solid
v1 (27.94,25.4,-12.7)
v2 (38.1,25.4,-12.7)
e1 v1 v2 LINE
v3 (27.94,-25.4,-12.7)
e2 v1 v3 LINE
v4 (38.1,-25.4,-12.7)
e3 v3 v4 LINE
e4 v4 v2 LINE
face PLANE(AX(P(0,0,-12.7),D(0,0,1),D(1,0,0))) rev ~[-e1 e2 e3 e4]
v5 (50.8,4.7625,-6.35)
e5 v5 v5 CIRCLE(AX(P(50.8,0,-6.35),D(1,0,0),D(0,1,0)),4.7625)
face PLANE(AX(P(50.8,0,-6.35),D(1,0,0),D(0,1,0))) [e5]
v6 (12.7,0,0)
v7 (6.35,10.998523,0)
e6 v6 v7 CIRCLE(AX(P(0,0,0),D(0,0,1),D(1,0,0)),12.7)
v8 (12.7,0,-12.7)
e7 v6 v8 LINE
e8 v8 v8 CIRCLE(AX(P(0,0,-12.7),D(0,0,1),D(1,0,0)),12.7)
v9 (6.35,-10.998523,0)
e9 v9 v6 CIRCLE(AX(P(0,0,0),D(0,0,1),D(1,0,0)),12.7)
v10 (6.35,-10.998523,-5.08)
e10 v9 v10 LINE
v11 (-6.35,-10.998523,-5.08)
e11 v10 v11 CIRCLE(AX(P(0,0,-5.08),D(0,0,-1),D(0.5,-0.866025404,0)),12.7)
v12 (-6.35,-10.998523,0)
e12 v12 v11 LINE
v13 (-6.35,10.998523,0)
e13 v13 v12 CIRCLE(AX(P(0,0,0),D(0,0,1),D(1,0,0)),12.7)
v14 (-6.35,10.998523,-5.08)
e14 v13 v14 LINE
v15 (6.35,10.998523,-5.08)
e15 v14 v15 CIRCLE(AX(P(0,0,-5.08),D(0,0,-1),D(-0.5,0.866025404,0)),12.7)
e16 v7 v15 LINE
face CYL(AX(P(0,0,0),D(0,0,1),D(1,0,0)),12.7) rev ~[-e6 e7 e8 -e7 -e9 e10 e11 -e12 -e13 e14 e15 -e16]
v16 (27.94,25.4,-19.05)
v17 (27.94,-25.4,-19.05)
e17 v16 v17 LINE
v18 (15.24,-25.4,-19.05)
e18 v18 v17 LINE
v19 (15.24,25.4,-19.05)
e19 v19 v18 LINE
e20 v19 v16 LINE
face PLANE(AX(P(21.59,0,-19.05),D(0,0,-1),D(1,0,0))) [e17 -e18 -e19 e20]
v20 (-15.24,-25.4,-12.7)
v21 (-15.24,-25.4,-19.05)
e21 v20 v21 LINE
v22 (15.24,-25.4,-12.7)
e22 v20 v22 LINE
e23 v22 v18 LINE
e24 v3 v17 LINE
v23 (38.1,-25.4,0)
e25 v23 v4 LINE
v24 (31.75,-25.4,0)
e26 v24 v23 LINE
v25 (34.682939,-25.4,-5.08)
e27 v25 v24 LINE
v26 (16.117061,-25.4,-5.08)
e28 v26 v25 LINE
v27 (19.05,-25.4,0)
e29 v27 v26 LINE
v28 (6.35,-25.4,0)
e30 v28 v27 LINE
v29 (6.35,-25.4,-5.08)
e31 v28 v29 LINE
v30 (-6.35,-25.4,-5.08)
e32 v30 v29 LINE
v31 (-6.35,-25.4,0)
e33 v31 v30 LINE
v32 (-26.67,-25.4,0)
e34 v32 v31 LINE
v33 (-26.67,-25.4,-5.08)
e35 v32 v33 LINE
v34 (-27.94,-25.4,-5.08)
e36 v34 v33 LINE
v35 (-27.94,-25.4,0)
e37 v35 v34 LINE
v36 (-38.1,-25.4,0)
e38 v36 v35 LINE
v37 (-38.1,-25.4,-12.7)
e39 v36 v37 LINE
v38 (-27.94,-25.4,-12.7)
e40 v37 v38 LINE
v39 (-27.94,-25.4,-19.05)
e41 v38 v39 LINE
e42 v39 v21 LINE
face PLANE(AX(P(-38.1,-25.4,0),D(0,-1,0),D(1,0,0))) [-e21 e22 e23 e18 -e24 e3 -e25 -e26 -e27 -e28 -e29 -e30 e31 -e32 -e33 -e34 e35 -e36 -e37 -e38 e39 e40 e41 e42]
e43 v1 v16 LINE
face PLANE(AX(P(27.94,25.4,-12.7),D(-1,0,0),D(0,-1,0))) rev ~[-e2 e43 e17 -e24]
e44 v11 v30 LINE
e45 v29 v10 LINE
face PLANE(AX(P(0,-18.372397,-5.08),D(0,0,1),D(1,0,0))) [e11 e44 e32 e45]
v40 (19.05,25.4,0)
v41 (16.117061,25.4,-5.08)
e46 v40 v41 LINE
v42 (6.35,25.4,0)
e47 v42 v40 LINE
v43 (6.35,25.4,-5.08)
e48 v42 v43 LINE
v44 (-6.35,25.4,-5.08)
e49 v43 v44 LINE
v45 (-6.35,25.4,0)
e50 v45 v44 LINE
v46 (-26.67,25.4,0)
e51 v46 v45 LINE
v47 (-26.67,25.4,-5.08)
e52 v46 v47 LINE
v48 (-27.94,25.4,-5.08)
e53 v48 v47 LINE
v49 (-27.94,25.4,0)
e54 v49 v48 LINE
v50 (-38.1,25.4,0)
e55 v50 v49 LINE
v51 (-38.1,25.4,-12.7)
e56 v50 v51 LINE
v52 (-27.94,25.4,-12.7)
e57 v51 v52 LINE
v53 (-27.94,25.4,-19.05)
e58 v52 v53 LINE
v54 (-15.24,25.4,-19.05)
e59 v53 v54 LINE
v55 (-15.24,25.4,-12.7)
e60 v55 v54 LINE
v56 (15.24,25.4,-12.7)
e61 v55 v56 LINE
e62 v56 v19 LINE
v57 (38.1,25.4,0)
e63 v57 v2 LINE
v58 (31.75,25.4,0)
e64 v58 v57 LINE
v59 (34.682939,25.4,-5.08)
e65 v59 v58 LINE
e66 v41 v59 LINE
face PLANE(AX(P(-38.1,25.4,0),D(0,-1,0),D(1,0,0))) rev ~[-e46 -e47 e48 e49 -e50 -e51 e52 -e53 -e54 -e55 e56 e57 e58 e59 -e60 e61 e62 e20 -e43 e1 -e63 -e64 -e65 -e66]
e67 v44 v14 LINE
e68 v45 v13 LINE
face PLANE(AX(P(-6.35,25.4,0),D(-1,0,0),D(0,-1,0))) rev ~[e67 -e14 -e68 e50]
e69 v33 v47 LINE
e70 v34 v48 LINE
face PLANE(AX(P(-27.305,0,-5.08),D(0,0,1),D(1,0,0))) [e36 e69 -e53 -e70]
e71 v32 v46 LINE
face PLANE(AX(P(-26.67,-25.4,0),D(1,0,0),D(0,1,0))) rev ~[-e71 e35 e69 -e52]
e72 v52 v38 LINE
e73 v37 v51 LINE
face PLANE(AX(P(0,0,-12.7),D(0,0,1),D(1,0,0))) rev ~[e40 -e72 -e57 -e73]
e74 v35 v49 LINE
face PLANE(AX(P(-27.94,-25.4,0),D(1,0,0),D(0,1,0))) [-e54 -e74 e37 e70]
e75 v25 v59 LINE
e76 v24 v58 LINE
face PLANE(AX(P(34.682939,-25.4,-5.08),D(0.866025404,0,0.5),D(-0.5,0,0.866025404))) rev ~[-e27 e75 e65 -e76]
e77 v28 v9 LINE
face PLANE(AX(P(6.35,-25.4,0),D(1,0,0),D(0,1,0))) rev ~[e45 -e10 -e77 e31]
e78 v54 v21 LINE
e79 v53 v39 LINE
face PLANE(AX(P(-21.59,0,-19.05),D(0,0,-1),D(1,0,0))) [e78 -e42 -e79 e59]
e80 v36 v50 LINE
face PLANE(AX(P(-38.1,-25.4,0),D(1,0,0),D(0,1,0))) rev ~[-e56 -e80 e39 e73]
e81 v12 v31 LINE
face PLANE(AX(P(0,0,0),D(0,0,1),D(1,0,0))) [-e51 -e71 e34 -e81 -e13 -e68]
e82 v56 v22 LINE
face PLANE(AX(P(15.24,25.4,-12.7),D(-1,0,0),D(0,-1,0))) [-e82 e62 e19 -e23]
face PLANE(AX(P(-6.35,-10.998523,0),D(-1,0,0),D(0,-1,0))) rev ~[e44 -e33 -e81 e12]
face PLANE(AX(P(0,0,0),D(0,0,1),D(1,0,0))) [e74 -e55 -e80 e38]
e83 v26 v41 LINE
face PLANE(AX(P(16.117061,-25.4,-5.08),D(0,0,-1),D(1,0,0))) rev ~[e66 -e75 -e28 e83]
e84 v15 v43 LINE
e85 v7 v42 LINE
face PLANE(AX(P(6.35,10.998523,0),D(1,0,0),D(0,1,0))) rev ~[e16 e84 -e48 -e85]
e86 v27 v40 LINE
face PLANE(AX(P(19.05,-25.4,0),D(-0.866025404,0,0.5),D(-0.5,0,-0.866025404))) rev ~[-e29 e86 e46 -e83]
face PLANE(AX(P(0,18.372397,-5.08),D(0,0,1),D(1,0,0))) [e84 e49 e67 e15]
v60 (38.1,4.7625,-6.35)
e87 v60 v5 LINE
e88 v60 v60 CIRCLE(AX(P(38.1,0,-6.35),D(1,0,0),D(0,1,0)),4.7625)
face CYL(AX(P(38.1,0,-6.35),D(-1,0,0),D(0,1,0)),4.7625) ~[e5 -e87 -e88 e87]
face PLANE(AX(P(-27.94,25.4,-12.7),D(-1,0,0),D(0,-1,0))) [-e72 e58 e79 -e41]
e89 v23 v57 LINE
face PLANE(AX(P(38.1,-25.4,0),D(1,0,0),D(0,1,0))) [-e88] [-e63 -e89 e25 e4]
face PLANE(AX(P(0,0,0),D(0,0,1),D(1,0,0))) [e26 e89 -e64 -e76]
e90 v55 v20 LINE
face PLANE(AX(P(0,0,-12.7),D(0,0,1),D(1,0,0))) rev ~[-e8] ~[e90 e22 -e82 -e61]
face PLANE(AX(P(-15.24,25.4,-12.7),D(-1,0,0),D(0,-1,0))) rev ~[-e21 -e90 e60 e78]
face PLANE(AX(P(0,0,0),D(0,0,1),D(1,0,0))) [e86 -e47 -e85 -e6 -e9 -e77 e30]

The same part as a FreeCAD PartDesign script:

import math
import FreeCAD as App
import Part
import Sketcher
Q = App.Units.Quantity

doc = App.newDocument("Part")
body = doc.addObject("PartDesign::Body", "Body")

# Sketch on XY plane
sketch1 = doc.addObject("Sketcher::SketchObject", "Sketch")
body.addObject(sketch1)
sketch1.AttachmentSupport = (doc.XY_Plane, [""])
sketch1.MapMode = "FlatFace"
sketch1.addGeometry([
    Part.LineSegment(App.Vector(-38, 25, 0), App.Vector(-38, -25, 0)),  # 0
    Part.LineSegment(App.Vector(-38, -25, 0), App.Vector(38, -25, 0)),  # 1
    Part.LineSegment(App.Vector(38, -25, 0), App.Vector(38, 25, 0)),  # 2
    Part.LineSegment(App.Vector(38, 25, 0), App.Vector(-38, 25, 0)),  # 3
    Part.Circle(App.Vector(0, 0, 0), App.Vector(0, 0, 1), 13),  # 4
], False)
sketch1.addConstraint([
    Sketcher.Constraint("Coincident", 0, 2, 1, 1),
    Sketcher.Constraint("Coincident", 1, 2, 2, 1),
    Sketcher.Constraint("Coincident", 2, 2, 3, 1),
    Sketcher.Constraint("Coincident", 3, 2, 0, 1),
    Sketcher.Constraint("Vertical", 0),
    Sketcher.Constraint("Horizontal", 1),
    Sketcher.Constraint("Vertical", 2),
    Sketcher.Constraint("Horizontal", 3),
    Sketcher.Constraint("Coincident", 4, 3, -1, 1),
    Sketcher.Constraint("Symmetric", 0, 2, 2, 2, -1, 1),
    Sketcher.Constraint("Diameter", 4, Q("1 in")),
    Sketcher.Constraint("DistanceX", 1, 1, 1, 2, Q("3 in")),
    Sketcher.Constraint("DistanceY", 0, 2, 0, 1, Q("2 in")),
])
pad1 = doc.addObject("PartDesign::Pad", "Pad")
body.addObject(pad1)
pad1.Profile = sketch1
pad1.Length = Q("0.5 in")
pad1.Reversed = True

# Sketch on XY plane
sketch2 = doc.addObject("Sketcher::SketchObject", "Sketch001")
body.addObject(sketch2)
sketch2.AttachmentSupport = (doc.XY_Plane, [""])
sketch2.MapMode = "FlatFace"
sketch2.addGeometry([
    Part.LineSegment(App.Vector(-27.9, 25.4, 0), App.Vector(-27.9, -25.4, 0)),  # 0
    Part.LineSegment(App.Vector(-27.9, -25.4, 0), App.Vector(-26.7, -25.4, 0)),  # 1
    Part.LineSegment(App.Vector(-26.7, -25.4, 0), App.Vector(-26.7, 25.4, 0)),  # 2
    Part.LineSegment(App.Vector(-26.7, 25.4, 0), App.Vector(-27.9, 25.4, 0)),  # 3
    Part.LineSegment(App.Vector(-6.3, -11, 0), App.Vector(-6.3, -25.4, 0)),  # 4
    Part.LineSegment(App.Vector(-6.3, -25.4, 0), App.Vector(6.3, -25.4, 0)),  # 5
    Part.LineSegment(App.Vector(6.3, -25.4, 0), App.Vector(6.3, -11, 0)),  # 6
    Part.ArcOfCircle(Part.Circle(App.Vector(0, 0, 0), App.Vector(0, 0, 1), 12.7), math.radians(-120), math.radians(-60)),  # 7
    Part.LineSegment(App.Vector(6.3, 25.4, 0), App.Vector(-6.3, 25.4, 0)),  # 8
    Part.LineSegment(App.Vector(-6.3, 25.4, 0), App.Vector(-6.3, 11, 0)),  # 9
    Part.ArcOfCircle(Part.Circle(App.Vector(0, 0, 0), App.Vector(0, 0, 1), 12.7), math.radians(60), math.radians(120)),  # 10
    Part.LineSegment(App.Vector(6.3, 11, 0), App.Vector(6.3, 25.4, 0)),  # 11
], False)
sketch2.addConstraint([
    Sketcher.Constraint("Coincident", 0, 2, 1, 1),
    Sketcher.Constraint("Coincident", 1, 2, 2, 1),
    Sketcher.Constraint("Coincident", 2, 2, 3, 1),
    Sketcher.Constraint("Coincident", 3, 2, 0, 1),
    Sketcher.Constraint("Coincident", 4, 2, 5, 1),
    Sketcher.Constraint("Coincident", 5, 2, 6, 1),
    Sketcher.Constraint("Coincident", 6, 2, 7, 2),
    Sketcher.Constraint("Coincident", 7, 1, 4, 1),
    Sketcher.Constraint("Coincident", 8, 2, 9, 1),
    Sketcher.Constraint("Coincident", 9, 2, 10, 2),
    Sketcher.Constraint("Coincident", 10, 1, 11, 1),
    Sketcher.Constraint("Coincident", 11, 2, 8, 1),
    Sketcher.Constraint("Vertical", 0),
    Sketcher.Constraint("Horizontal", 1),
    Sketcher.Constraint("Vertical", 2),
    Sketcher.Constraint("Horizontal", 3),
    Sketcher.Constraint("Vertical", 4),
    Sketcher.Constraint("Horizontal", 5),
    Sketcher.Constraint("Vertical", 6),
    Sketcher.Constraint("Horizontal", 8),
    Sketcher.Constraint("Vertical", 9),
    Sketcher.Constraint("Vertical", 11),
    Sketcher.Constraint("Coincident", 7, 3, -1, 1),
    Sketcher.Constraint("Coincident", 10, 3, -1, 1),
    Sketcher.Constraint("Equal", 7, 10),
    Sketcher.Constraint("Symmetric", 5, 2, 8, 2, -1, 1),
    Sketcher.Constraint("Horizontal", 1, 2, 4, 2),
    Sketcher.Constraint("Horizontal", 6, 2, 7, 1),
    Sketcher.Constraint("Horizontal", 3, 2, 8, 2),
    Sketcher.Constraint("Horizontal", 9, 2, 10, 1),
    Sketcher.Constraint("Radius", 7, Q("0.5 in")),
    Sketcher.Constraint("DistanceY", 0, 2, 0, 1, Q("2 in")),
    Sketcher.Constraint("DistanceX", 5, 1, 5, 2, Q("0.5 in")),
    Sketcher.Constraint("DistanceX", 1, 1, 1, 2, Q("0.05 in")),
    Sketcher.Constraint("DistanceX", 0, 2, -1, 1, Q("1.1 in")),
])
pocket1 = doc.addObject("PartDesign::Pocket", "Pocket")
body.addObject(pocket1)
pocket1.Profile = sketch2
pocket1.Length = Q("0.2 in")

# Sketch on XZ plane
sketch3 = doc.addObject("Sketcher::SketchObject", "Sketch002")
body.addObject(sketch3)
sketch3.AttachmentSupport = (doc.XZ_Plane, [""])
sketch3.MapMode = "FlatFace"
sketch3.AttachmentOffset = App.Placement(App.Vector(0, 0, 1 * 25.4), App.Rotation())
sketch3.addGeometry([
    Part.LineSegment(App.Vector(32, 0, 0), App.Vector(19, 0, 0)),
    Part.LineSegment(App.Vector(19, 0, 0), App.Vector(16, -5, 0)),
    Part.LineSegment(App.Vector(16, -5, 0), App.Vector(35, -5, 0)),
    Part.LineSegment(App.Vector(35, -5, 0), App.Vector(32, 0, 0)),
], False)
sketch3.addConstraint([
    Sketcher.Constraint("Coincident", 0, 2, 1, 1),
    Sketcher.Constraint("Coincident", 1, 2, 2, 1),
    Sketcher.Constraint("Coincident", 2, 2, 3, 1),
    Sketcher.Constraint("Coincident", 3, 2, 0, 1),
    Sketcher.Constraint("Horizontal", 0),
    Sketcher.Constraint("Horizontal", 2),
    Sketcher.Constraint("PointOnObject", 0, 2, -1),
    Sketcher.Constraint("Equal", 1, 3),
    Sketcher.Constraint("DistanceX", 0, 2, 0, 1, Q("0.5 in")),
    Sketcher.Constraint("Angle", 1, Q("-120 deg")),
    Sketcher.Constraint("DistanceY", 1, 2, -1, 1, Q("0.2 in")),
    Sketcher.Constraint("DistanceX", -1, 1, 0, 2, Q("0.75 in")),
])
pocket2 = doc.addObject("PartDesign::Pocket", "Pocket001")
body.addObject(pocket2)
pocket2.Profile = sketch3
pocket2.Type = "ThroughAll"

# Sketch on YZ plane
sketch4 = doc.addObject("Sketcher::SketchObject", "Sketch003")
body.addObject(sketch4)
sketch4.AttachmentSupport = (doc.YZ_Plane, [""])
sketch4.MapMode = "FlatFace"
sketch4.AttachmentOffset = App.Placement(App.Vector(0, 0, 1.5 * 25.4), App.Rotation())
sketch4.addGeometry(Part.Circle(App.Vector(0, -6.3, 0), App.Vector(0, 0, 1), 4.8), False)
sketch4.addConstraint([
    Sketcher.Constraint("PointOnObject", 0, 3, -2),
    Sketcher.Constraint("Diameter", 0, Q("0.375 in")),
    Sketcher.Constraint("DistanceY", 0, 3, -1, 1, Q("0.25 in")),
])
pad2 = doc.addObject("PartDesign::Pad", "Pad001")
body.addObject(pad2)
pad2.Profile = sketch4
pad2.Length = Q("0.5 in")

# Sketch on XY plane
sketch5 = doc.addObject("Sketcher::SketchObject", "Sketch004")
body.addObject(sketch5)
sketch5.AttachmentSupport = (doc.XY_Plane, [""])
sketch5.MapMode = "FlatFace"
sketch5.AttachmentOffset = App.Placement(App.Vector(0, 0, -0.5 * 25.4), App.Rotation())
sketch5.addGeometry([
    Part.LineSegment(App.Vector(-28, -25, 0), App.Vector(-28, 25, 0)),  # 0
    Part.LineSegment(App.Vector(-28, 25, 0), App.Vector(-15, 25, 0)),  # 1
    Part.LineSegment(App.Vector(-15, 25, 0), App.Vector(-15, -25, 0)),  # 2
    Part.LineSegment(App.Vector(-15, -25, 0), App.Vector(-28, -25, 0)),  # 3
    Part.LineSegment(App.Vector(15, -25, 0), App.Vector(15, 25, 0)),  # 4
    Part.LineSegment(App.Vector(15, 25, 0), App.Vector(28, 25, 0)),  # 5
    Part.LineSegment(App.Vector(28, 25, 0), App.Vector(28, -25, 0)),  # 6
    Part.LineSegment(App.Vector(28, -25, 0), App.Vector(15, -25, 0)),  # 7
], False)
sketch5.addConstraint([
    Sketcher.Constraint("Coincident", 0, 2, 1, 1),
    Sketcher.Constraint("Coincident", 1, 2, 2, 1),
    Sketcher.Constraint("Coincident", 2, 2, 3, 1),
    Sketcher.Constraint("Coincident", 3, 2, 0, 1),
    Sketcher.Constraint("Coincident", 4, 2, 5, 1),
    Sketcher.Constraint("Coincident", 5, 2, 6, 1),
    Sketcher.Constraint("Coincident", 6, 2, 7, 1),
    Sketcher.Constraint("Coincident", 7, 2, 4, 1),
    Sketcher.Constraint("Vertical", 0),
    Sketcher.Constraint("Horizontal", 1),
    Sketcher.Constraint("Vertical", 2),
    Sketcher.Constraint("Horizontal", 3),
    Sketcher.Constraint("Vertical", 4),
    Sketcher.Constraint("Horizontal", 5),
    Sketcher.Constraint("Vertical", 6),
    Sketcher.Constraint("Horizontal", 7),
    Sketcher.Constraint("Symmetric", 2, 2, 4, 2, -1, 1),
    Sketcher.Constraint("Symmetric", 0, 2, 6, 2, -1, 1),
    Sketcher.Constraint("Horizontal", 1, 2, 4, 2),
    Sketcher.Constraint("DistanceY", 0, 1, 0, 2, Q("2 in")),
    Sketcher.Constraint("DistanceX", 1, 1, 1, 2, Q("0.5 in")),
    Sketcher.Constraint("DistanceX", 0, 2, -1, 1, Q("1.1 in")),
])
pad3 = doc.addObject("PartDesign::Pad", "Pad002")
body.addObject(pad3)
pad3.Profile = sketch5
pad3.Length = Q("0.25 in")
pad3.Reversed = True

doc.recompute()
